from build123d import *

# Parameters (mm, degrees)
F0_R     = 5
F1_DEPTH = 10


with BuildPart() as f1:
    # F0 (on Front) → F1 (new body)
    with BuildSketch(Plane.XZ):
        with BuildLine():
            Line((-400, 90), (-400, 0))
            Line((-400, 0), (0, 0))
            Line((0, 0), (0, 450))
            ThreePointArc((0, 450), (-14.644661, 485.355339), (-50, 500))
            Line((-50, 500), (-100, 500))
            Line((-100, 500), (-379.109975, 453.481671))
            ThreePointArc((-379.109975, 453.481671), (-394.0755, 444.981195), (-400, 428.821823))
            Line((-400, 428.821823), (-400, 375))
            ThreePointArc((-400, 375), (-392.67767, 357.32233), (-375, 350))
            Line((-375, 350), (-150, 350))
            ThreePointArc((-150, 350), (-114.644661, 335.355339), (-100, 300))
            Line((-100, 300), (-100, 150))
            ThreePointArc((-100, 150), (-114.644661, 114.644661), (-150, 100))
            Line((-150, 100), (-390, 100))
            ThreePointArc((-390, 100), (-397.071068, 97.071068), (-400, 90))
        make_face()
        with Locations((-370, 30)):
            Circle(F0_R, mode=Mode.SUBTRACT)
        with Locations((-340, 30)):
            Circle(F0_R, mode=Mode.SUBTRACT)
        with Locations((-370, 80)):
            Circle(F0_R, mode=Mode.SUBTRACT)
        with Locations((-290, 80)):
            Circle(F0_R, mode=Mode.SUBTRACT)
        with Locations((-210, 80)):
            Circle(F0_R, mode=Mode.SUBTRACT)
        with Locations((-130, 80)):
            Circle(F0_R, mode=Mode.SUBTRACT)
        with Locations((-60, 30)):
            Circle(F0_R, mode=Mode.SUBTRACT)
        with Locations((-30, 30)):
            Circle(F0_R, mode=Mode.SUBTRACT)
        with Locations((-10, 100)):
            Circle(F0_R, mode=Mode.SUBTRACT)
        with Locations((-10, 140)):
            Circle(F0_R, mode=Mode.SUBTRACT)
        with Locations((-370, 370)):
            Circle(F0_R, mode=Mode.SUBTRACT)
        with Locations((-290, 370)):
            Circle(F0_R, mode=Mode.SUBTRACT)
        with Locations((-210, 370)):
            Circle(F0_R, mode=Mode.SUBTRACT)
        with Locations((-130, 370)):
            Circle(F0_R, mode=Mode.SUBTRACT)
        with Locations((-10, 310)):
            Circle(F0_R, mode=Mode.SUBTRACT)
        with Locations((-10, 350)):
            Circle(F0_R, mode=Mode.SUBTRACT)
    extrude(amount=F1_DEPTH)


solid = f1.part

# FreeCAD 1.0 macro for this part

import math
import FreeCAD as App
import Part
import Sketcher
from FreeCAD import Vector

doc = App.newDocument("Part")
body = doc.addObject("PartDesign::Body", "Body")

sketch1 = body.newObject("Sketcher::SketchObject", "Sketch")
sketch1.AttachmentSupport = (doc.getObject("XZ_Plane"), [""])
sketch1.MapMode = "FlatFace"
sketch1.addGeometry([
    Part.LineSegment(Vector(-400, 90, 0), Vector(-400, 0, 0)),
    Part.LineSegment(Vector(-400, 0, 0), Vector(0, 0, 0)),
    Part.LineSegment(Vector(0, 0, 0), Vector(0, 450, 0)),
    Part.ArcOfCircle(Part.Circle(Vector(-50, 450, 0), Vector(0, 0, 1), 50), math.radians(0), math.radians(90)),
    Part.LineSegment(Vector(-50, 500, 0), Vector(-100, 500, 0)),
    Part.LineSegment(Vector(-100, 500, 0), Vector(-379, 453, 0)),
    Part.ArcOfCircle(Part.Circle(Vector(-375, 429, 0), Vector(0, 0, 1), 25), math.radians(99), math.radians(180)),
    Part.LineSegment(Vector(-400, 429, 0), Vector(-400, 375, 0)),
    Part.ArcOfCircle(Part.Circle(Vector(-375, 375, 0), Vector(0, 0, 1), 25), math.radians(180), math.radians(270)),
    Part.LineSegment(Vector(-375, 350, 0), Vector(-150, 350, 0)),
    Part.ArcOfCircle(Part.Circle(Vector(-150, 300, 0), Vector(0, 0, 1), 50), math.radians(0), math.radians(90)),
    Part.LineSegment(Vector(-100, 300, 0), Vector(-100, 150, 0)),
    Part.ArcOfCircle(Part.Circle(Vector(-150, 150, 0), Vector(0, 0, 1), 50), math.radians(-90), math.radians(0)),
    Part.LineSegment(Vector(-150, 100, 0), Vector(-390, 100, 0)),
    Part.ArcOfCircle(Part.Circle(Vector(-390, 90, 0), Vector(0, 0, 1), 10), math.radians(90), math.radians(180)),
    Part.Circle(Vector(-370, 30, 0), Vector(0, 0, 1), 5),
    Part.Circle(Vector(-340, 30, 0), Vector(0, 0, 1), 5),
    Part.Circle(Vector(-370, 80, 0), Vector(0, 0, 1), 5),
    Part.Circle(Vector(-290, 80, 0), Vector(0, 0, 1), 5),
    Part.Circle(Vector(-210, 80, 0), Vector(0, 0, 1), 5),
    Part.Circle(Vector(-130, 80, 0), Vector(0, 0, 1), 5),
    Part.Circle(Vector(-60, 30, 0), Vector(0, 0, 1), 5),
    Part.Circle(Vector(-30, 30, 0), Vector(0, 0, 1), 5),
    Part.Circle(Vector(-10, 100, 0), Vector(0, 0, 1), 5),
    Part.Circle(Vector(-10, 140, 0), Vector(0, 0, 1), 5),
    Part.Circle(Vector(-370, 370, 0), Vector(0, 0, 1), 5),
    Part.Circle(Vector(-290, 370, 0), Vector(0, 0, 1), 5),
    Part.Circle(Vector(-210, 370, 0), Vector(0, 0, 1), 5),
    Part.Circle(Vector(-130, 370, 0), Vector(0, 0, 1), 5),
    Part.Circle(Vector(-10, 310, 0), Vector(0, 0, 1), 5),
    Part.Circle(Vector(-10, 350, 0), Vector(0, 0, 1), 5),
], False)
sketch1.addConstraint([
    Sketcher.Constraint("Coincident", 0, 2, 1, 1),
    Sketcher.Constraint("Coincident", 1, 2, 2, 1),
    Sketcher.Constraint("Tangent", 2, 2, 3, 1),
    Sketcher.Constraint("Tangent", 3, 2, 4, 1),
    Sketcher.Constraint("Coincident", 4, 2, 5, 1),
    Sketcher.Constraint("Tangent", 5, 2, 6, 1),
    Sketcher.Constraint("Tangent", 6, 2, 7, 1),
    Sketcher.Constraint("Tangent", 7, 2, 8, 1),
    Sketcher.Constraint("Tangent", 8, 2, 9, 1),
    Sketcher.Constraint("Tangent", 9, 2, 10, 2),
    Sketcher.Constraint("Tangent", 10, 1, 11, 1),
    Sketcher.Constraint("Tangent", 11, 2, 12, 2),
    Sketcher.Constraint("Tangent", 12, 1, 13, 1),
    Sketcher.Constraint("Tangent", 13, 2, 14, 1),
    Sketcher.Constraint("Tangent", 14, 2, 0, 1),
    Sketcher.Constraint("Vertical", 0),
    Sketcher.Constraint("Horizontal", 1),
    Sketcher.Constraint("Vertical", 2),
    Sketcher.Constraint("Horizontal", 4),
    Sketcher.Constraint("Vertical", 7),
    Sketcher.Constraint("Horizontal", 9),
    Sketcher.Constraint("Vertical", 11),
    Sketcher.Constraint("Horizontal", 13),
    Sketcher.Constraint("Coincident", 1, 2, -1, 1),
    Sketcher.Constraint("Equal", 6, 8),
    Sketcher.Constraint("Equal", 3, 10),
    Sketcher.Constraint("Equal", 10, 12),
    Sketcher.Constraint("Equal", 15, 16),
    Sketcher.Constraint("Equal", 16, 17),
    Sketcher.Constraint("Equal", 17, 18),
    Sketcher.Constraint("Equal", 18, 19),
    Sketcher.Constraint("Equal", 19, 20),
    Sketcher.Constraint("Equal", 20, 21),
    Sketcher.Constraint("Equal", 21, 22),
    Sketcher.Constraint("Equal", 22, 23),
    Sketcher.Constraint("Equal", 23, 24),
    Sketcher.Constraint("Equal", 24, 25),
    Sketcher.Constraint("Equal", 25, 26),
    Sketcher.Constraint("Equal", 26, 27),
    Sketcher.Constraint("Equal", 27, 28),
    Sketcher.Constraint("Equal", 28, 29),
    Sketcher.Constraint("Equal", 29, 30),
    Sketcher.Constraint("Horizontal", 15, 3, 16, 3),
    Sketcher.Constraint("Horizontal", 17, 3, 18, 3),
    Sketcher.Constraint("Horizontal", 18, 3, 19, 3),
    Sketcher.Constraint("Horizontal", 19, 3, 20, 3),
    Sketcher.Constraint("Horizontal", 16, 3, 21, 3),
    Sketcher.Constraint("Horizontal", 21, 3, 22, 3),
    Sketcher.Constraint("Horizontal", 25, 3, 26, 3),
    Sketcher.Constraint("Horizontal", 26, 3, 27, 3),
    Sketcher.Constraint("Horizontal", 27, 3, 28, 3),
    Sketcher.Constraint("Horizontal", 30, 3, 8, 2),
    Sketcher.Constraint("Horizontal", 23, 3, 12, 1),
    Sketcher.Constraint("Vertical", 15, 3, 17, 3),
    Sketcher.Constraint("Vertical", 23, 3, 24, 3),
    Sketcher.Constraint("Vertical", 17, 3, 25, 3),
    Sketcher.Constraint("Vertical", 18, 3, 26, 3),
    Sketcher.Constraint("Vertical", 19, 3, 27, 3),
    Sketcher.Constraint("Vertical", 20, 3, 28, 3),
    Sketcher.Constraint("Vertical", 24, 3, 29, 3),
    Sketcher.Constraint("Vertical", 29, 3, 30, 3),
    Sketcher.Constraint("Vertical", 0, 2, 6, 2),
    Sketcher.Constraint("Vertical", 4, 2, 10, 1),
    Sketcher.Constraint("Diameter", 15, 10.0),
    Sketcher.Constraint("Radius", 3, 50.0),
    Sketcher.Constraint("Radius", 6, 25.0),
    Sketcher.Constraint("Radius", 14, 9.999999),
    Sketcher.Constraint("DistanceX", 1, 1, 1, 2, 400.0),
    Sketcher.Constraint("DistanceX", 4, 2, 4, 1, 50.0),
    Sketcher.Constraint("DistanceY", 0, 2, 0, 1, 90.0),
    Sketcher.Constraint("DistanceY", 2, 1, 2, 2, 450.0),
    Sketcher.Constraint("DistanceY", 11, 2, 11, 1, 150.0),
    Sketcher.Constraint("DistanceX", 15, 3, -1, 1, 370.0),
    Sketcher.Constraint("DistanceY", -1, 1, 15, 3, 30.0),
    Sketcher.Constraint("DistanceX", 16, 3, -1, 1, 340.0),
    Sketcher.Constraint("DistanceY", -1, 1, 17, 3, 80.0),
    Sketcher.Constraint("DistanceX", 18, 3, -1, 1, 290.0),
    Sketcher.Constraint("DistanceX", 19, 3, -1, 1, 210.0),
    Sketcher.Constraint("DistanceX", 20, 3, -1, 1, 130.0),
    Sketcher.Constraint("DistanceX", 21, 3, -1, 1, 60.0),
    Sketcher.Constraint("DistanceX", 22, 3, -1, 1, 30.0),
    Sketcher.Constraint("DistanceX", 23, 3, -1, 1, 10.0),
    Sketcher.Constraint("DistanceY", -1, 1, 24, 3, 140.0),
    Sketcher.Constraint("DistanceY", -1, 1, 25, 3, 370.0),
    Sketcher.Constraint("DistanceY", -1, 1, 29, 3, 310.0),
    Sketcher.Constraint("Distance", 5, 282.95995),
])
pad1 = body.newObject("PartDesign::Pad", "Pad")
pad1.Profile = sketch1
pad1.Length = 10

doc.recompute()
